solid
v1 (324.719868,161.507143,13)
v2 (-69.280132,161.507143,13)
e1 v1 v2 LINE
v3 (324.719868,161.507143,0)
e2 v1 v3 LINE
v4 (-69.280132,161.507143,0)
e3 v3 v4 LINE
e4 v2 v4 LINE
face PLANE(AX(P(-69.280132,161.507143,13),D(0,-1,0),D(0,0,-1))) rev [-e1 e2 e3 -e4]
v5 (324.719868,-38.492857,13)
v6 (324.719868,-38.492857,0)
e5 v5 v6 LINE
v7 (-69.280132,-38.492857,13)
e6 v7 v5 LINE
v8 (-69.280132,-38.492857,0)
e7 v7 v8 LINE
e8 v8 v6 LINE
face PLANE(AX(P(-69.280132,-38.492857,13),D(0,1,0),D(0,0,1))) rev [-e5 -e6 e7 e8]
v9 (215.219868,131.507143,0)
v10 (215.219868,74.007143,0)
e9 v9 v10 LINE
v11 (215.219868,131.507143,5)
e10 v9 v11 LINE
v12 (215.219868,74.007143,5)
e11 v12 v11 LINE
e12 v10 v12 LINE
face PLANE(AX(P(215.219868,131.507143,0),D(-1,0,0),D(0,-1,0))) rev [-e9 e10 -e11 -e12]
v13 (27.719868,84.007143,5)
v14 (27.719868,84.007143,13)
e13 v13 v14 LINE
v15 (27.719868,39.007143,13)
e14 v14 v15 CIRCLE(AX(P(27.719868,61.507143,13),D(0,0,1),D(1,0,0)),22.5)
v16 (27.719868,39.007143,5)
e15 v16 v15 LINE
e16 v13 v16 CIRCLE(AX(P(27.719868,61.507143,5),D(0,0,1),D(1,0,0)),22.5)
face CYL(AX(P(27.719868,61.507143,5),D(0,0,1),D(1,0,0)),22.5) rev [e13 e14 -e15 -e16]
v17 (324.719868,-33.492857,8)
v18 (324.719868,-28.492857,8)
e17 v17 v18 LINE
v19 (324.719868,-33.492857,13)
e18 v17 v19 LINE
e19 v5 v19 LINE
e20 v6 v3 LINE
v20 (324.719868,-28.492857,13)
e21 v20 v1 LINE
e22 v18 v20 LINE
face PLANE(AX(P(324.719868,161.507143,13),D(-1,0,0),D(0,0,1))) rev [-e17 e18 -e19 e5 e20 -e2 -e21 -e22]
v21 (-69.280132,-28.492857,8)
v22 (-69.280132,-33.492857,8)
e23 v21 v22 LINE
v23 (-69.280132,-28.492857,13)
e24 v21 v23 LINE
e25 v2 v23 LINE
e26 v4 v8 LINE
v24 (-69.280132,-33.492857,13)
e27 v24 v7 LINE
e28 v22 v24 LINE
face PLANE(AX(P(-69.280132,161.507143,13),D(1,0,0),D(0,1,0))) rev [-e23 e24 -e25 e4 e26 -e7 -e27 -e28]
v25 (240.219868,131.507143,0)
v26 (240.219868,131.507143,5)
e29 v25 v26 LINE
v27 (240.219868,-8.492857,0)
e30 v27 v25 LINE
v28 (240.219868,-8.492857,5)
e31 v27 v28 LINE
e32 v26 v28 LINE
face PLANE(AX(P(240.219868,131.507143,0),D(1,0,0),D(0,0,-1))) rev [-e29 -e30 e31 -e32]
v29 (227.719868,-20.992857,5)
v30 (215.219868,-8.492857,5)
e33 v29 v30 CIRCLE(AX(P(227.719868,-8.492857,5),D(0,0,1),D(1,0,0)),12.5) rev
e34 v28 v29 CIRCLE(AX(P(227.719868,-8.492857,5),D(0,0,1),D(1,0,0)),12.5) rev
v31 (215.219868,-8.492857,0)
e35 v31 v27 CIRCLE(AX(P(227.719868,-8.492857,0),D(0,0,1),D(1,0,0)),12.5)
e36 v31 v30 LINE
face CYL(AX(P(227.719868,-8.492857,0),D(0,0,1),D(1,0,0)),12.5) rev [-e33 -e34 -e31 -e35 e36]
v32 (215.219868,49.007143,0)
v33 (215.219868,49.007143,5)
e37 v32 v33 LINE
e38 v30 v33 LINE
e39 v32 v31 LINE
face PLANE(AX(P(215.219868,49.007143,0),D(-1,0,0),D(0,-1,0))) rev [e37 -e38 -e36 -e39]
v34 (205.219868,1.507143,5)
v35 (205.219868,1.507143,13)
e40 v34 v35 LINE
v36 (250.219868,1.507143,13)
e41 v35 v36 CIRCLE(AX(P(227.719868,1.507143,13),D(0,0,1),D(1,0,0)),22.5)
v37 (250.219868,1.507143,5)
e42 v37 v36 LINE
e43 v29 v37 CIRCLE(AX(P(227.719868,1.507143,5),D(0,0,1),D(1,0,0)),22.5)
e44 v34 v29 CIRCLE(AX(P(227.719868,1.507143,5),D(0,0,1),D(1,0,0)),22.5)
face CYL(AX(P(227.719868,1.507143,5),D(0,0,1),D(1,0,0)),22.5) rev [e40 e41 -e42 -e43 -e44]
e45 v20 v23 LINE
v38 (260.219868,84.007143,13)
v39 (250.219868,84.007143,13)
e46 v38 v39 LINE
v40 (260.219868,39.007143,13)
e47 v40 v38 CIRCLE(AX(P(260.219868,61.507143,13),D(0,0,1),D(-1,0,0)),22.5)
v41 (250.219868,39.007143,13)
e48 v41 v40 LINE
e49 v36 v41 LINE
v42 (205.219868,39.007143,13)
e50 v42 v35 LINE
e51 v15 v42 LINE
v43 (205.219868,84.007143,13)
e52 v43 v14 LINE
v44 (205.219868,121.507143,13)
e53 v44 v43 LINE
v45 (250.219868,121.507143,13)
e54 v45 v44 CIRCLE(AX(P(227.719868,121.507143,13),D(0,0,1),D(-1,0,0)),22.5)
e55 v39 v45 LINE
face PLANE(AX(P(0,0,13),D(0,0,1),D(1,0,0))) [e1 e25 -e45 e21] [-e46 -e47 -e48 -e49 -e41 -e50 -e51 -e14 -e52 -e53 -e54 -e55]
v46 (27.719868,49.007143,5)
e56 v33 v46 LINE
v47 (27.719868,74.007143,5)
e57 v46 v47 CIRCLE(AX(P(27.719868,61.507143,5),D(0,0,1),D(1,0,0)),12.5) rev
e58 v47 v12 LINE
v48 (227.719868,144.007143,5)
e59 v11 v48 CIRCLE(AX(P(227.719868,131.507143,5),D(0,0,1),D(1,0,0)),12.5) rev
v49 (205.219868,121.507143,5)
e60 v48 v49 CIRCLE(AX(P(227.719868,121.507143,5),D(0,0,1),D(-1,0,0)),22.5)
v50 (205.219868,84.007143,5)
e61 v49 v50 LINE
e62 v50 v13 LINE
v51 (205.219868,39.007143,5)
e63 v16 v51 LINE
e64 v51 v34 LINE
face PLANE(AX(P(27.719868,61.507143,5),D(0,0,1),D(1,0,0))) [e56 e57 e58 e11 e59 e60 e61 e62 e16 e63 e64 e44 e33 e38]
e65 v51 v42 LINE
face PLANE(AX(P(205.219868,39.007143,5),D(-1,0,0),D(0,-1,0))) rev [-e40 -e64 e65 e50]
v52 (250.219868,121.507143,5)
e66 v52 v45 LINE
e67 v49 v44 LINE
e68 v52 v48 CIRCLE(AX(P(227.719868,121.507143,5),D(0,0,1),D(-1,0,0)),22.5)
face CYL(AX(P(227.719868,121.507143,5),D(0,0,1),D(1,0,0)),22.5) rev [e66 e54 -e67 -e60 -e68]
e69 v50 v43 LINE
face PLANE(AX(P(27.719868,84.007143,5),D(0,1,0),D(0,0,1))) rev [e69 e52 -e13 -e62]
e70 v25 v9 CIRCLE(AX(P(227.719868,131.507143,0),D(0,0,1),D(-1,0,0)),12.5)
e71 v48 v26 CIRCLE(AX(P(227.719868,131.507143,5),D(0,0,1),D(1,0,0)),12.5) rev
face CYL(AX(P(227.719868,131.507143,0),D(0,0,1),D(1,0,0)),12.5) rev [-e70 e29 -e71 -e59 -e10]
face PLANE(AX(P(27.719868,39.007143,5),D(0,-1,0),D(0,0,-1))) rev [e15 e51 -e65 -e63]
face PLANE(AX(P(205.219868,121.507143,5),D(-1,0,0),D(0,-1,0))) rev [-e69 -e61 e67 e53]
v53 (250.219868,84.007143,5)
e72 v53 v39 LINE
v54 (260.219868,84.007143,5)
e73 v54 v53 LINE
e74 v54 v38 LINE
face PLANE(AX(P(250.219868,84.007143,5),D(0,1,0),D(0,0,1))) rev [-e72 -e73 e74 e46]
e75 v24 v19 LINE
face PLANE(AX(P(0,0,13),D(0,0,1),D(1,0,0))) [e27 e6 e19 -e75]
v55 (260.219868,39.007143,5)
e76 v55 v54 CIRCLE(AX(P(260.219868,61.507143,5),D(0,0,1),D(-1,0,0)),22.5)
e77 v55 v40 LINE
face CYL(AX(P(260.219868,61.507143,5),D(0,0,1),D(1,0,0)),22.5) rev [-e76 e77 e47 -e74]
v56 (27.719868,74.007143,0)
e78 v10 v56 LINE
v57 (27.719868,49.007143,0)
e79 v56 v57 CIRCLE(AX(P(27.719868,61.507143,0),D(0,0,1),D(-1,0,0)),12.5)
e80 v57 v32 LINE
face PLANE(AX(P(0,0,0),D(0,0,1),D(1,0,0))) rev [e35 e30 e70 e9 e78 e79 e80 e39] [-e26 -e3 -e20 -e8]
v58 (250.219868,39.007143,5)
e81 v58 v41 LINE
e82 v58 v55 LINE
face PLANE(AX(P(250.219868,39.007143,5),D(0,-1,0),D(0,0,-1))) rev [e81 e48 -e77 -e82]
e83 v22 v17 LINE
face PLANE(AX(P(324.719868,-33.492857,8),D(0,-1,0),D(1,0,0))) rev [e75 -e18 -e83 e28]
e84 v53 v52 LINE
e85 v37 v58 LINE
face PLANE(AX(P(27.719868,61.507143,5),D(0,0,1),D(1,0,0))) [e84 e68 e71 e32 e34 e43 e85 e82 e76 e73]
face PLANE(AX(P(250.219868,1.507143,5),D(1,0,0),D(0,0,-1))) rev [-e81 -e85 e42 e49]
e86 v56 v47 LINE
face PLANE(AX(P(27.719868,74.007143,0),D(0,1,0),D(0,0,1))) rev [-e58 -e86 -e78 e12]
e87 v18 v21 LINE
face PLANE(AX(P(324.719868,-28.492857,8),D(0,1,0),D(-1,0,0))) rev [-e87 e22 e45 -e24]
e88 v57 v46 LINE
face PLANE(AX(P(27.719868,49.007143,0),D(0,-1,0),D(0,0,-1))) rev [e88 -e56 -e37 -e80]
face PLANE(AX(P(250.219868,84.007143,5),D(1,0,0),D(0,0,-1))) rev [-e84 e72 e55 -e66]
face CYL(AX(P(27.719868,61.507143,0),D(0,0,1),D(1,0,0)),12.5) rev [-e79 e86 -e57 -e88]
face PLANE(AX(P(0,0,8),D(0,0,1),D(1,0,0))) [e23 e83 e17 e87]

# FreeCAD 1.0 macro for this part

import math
import FreeCAD as App
import Part
import Sketcher
from FreeCAD import Vector


def add_polygon(sketch, points):
    """Adds a closed chain of lines whose ends are joined by coincident constraints."""
    first, n = sketch.GeometryCount, len(points)
    for a, b in zip(points, points[1:] + points[:1]):
        sketch.addGeometry(Part.LineSegment(App.Vector(*a, 0), App.Vector(*b, 0)), False)
    for i in range(n):
        sketch.addConstraint(Sketcher.Constraint("Coincident", first + i, 2, first + (i + 1) % n, 1))

doc = App.newDocument("Part")
body = doc.addObject("PartDesign::Body", "Body")

sketch1 = body.newObject("Sketcher::SketchObject", "Sketch")
sketch1.AttachmentSupport = (doc.getObject("XY_Plane"), [""])
sketch1.MapMode = "FlatFace"
add_polygon(sketch1, [(-69.280132, 161.507143), (-69.280132, -38.492857), (324.719868, -38.492857), (324.719868, 161.507143)])
sketch1.addConstraint([
    Sketcher.Constraint("Vertical", 0),
    Sketcher.Constraint("Horizontal", 1),
    Sketcher.Constraint("Vertical", 2),
    Sketcher.Constraint("Horizontal", 3),
    Sketcher.Constraint("DistanceX", 1, 1, 1, 2, 394.0),
    Sketcher.Constraint("DistanceY", 0, 2, 0, 1, 200.0),
    Sketcher.Constraint("DistanceX", 0, 2, -1, 1, 69.280132),
    Sketcher.Constraint("DistanceY", 0, 2, -1, 1, 38.492857),
])
pad1 = body.newObject("PartDesign::Pad", "Pad")
pad1.Profile = sketch1
pad1.Length = 13

sketch2 = body.newObject("Sketcher::SketchObject", "Sketch001")
sketch2.AttachmentSupport = (doc.getObject("XY_Plane"), [""])
sketch2.MapMode = "FlatFace"
sketch2.AttachmentOffset = App.Placement(Vector(0, 0, 13), App.Rotation())
add_polygon(sketch2, [(-69.280132, -28.492857), (-69.280132, -33.492857), (324.719868, -33.492857), (324.719868, -28.492857)])
sketch2.addConstraint([
    Sketcher.Constraint("Vertical", 0),
    Sketcher.Constraint("Horizontal", 1),
    Sketcher.Constraint("Vertical", 2),
    Sketcher.Constraint("Horizontal", 3),
    Sketcher.Constraint("DistanceX", 1, 1, 1, 2, 394.0),
    Sketcher.Constraint("DistanceY", 0, 2, 0, 1, 5.0),
    Sketcher.Constraint("DistanceX", 0, 2, -1, 1, 69.280132),
    Sketcher.Constraint("DistanceY", 0, 2, -1, 1, 33.492857),
])
pocket1 = body.newObject("PartDesign::Pocket", "Pocket")
pocket1.Profile = sketch2
pocket1.Length = 5

sketch3 = body.newObject("Sketcher::SketchObject", "Sketch002")
sketch3.AttachmentSupport = (doc.getObject("XY_Plane"), [""])
sketch3.MapMode = "FlatFace"
sketch3.AttachmentOffset = App.Placement(Vector(0, 0, 13), App.Rotation())
sketch3.addGeometry([
    Part.LineSegment(Vector(215.219868, 74.007143, 0), Vector(27.719868, 74.007143, 0)),
    Part.ArcOfCircle(Part.Circle(Vector(27.719868, 61.507143, 0), Vector(0, 0, 1), 12.5), math.radians(90), math.radians(270)),
    Part.LineSegment(Vector(27.719868, 49.007143, 0), Vector(215.219868, 49.007143, 0)),
    Part.LineSegment(Vector(215.219868, 49.007143, 0), Vector(215.219868, -8.492857, 0)),
    Part.ArcOfCircle(Part.Circle(Vector(227.719868, -8.492857, 0), Vector(0, 0, 1), 12.5), math.radians(180), math.radians(360)),
    Part.LineSegment(Vector(240.219868, -8.492857, 0), Vector(240.219868, 131.507143, 0)),
    Part.ArcOfCircle(Part.Circle(Vector(227.719868, 131.507143, 0), Vector(0, 0, 1), 12.5), math.radians(0), math.radians(180)),
    Part.LineSegment(Vector(215.219868, 131.507143, 0), Vector(215.219868, 74.007143, 0)),
], False)
sketch3.addConstraint([
    Sketcher.Constraint("Tangent", 0, 2, 1, 1),
    Sketcher.Constraint("Tangent", 1, 2, 2, 1),
    Sketcher.Constraint("Coincident", 2, 2, 3, 1),
    Sketcher.Constraint("Tangent", 3, 2, 4, 1),
    Sketcher.Constraint("Tangent", 4, 2, 5, 1),
    Sketcher.Constraint("Tangent", 5, 2, 6, 1),
    Sketcher.Constraint("Tangent", 6, 2, 7, 1),
    Sketcher.Constraint("Coincident", 7, 2, 0, 1),
    Sketcher.Constraint("Horizontal", 0),
    Sketcher.Constraint("Horizontal", 2),
    Sketcher.Constraint("Vertical", 3),
    Sketcher.Constraint("Vertical", 5),
    Sketcher.Constraint("Vertical", 7),
    Sketcher.Constraint("Equal", 1, 4),
    Sketcher.Constraint("Equal", 4, 6),
    Sketcher.Constraint("Equal", 3, 7),
    Sketcher.Constraint("Radius", 1, 12.5),
    Sketcher.Constraint("DistanceY", 5, 1, 5, 2, 140.0),
    Sketcher.Constraint("DistanceX", 0, 2, 0, 1, 187.5),
    Sketcher.Constraint("DistanceX", -1, 1, 1, 3, 27.719868),
    Sketcher.Constraint("DistanceY", -1, 1, 1, 3, 61.507143),
])
pocket2 = body.newObject("PartDesign::Pocket", "Pocket001")
pocket2.Profile = sketch3
pocket2.Type = "ThroughAll"

sketch4 = body.newObject("Sketcher::SketchObject", "Sketch003")
sketch4.AttachmentSupport = (doc.getObject("XY_Plane"), [""])
sketch4.MapMode = "FlatFace"
sketch4.AttachmentOffset = App.Placement(Vector(0, 0, 13), App.Rotation())
sketch4.addGeometry([
    Part.LineSegment(Vector(205.219868, 84.007143, 0), Vector(27.719868, 84.007143, 0)),
    Part.ArcOfCircle(Part.Circle(Vector(27.719868, 61.507143, 0), Vector(0, 0, 1), 22.5), math.radians(90), math.radians(270)),
    Part.LineSegment(Vector(27.719868, 39.007143, 0), Vector(205.219868, 39.007143, 0)),
    Part.LineSegment(Vector(205.219868, 39.007143, 0), Vector(205.219868, 1.507143, 0)),
    Part.ArcOfCircle(Part.Circle(Vector(227.719868, 1.507143, 0), Vector(0, 0, 1), 22.5), math.radians(180), math.radians(360)),
    Part.LineSegment(Vector(250.219868, 1.507143, 0), Vector(250.219868, 39.007143, 0)),
    Part.LineSegment(Vector(250.219868, 39.007143, 0), Vector(260.219868, 39.007143, 0)),
    Part.ArcOfCircle(Part.Circle(Vector(260.219868, 61.507143, 0), Vector(0, 0, 1), 22.5), math.radians(-90), math.radians(90)),
    Part.LineSegment(Vector(260.219868, 84.007143, 0), Vector(250.219868, 84.007143, 0)),
    Part.LineSegment(Vector(250.219868, 84.007143, 0), Vector(250.219868, 121.507143, 0)),
    Part.ArcOfCircle(Part.Circle(Vector(227.719868, 121.507143, 0), Vector(0, 0, 1), 22.5), math.radians(0), math.radians(180)),
    Part.LineSegment(Vector(205.219868, 121.507143, 0), Vector(205.219868, 84.007143, 0)),
], False)
sketch4.addConstraint([
    Sketcher.Constraint("Tangent", 0, 2, 1, 1),
    Sketcher.Constraint("Tangent", 1, 2, 2, 1),
    Sketcher.Constraint("Coincident", 2, 2, 3, 1),
    Sketcher.Constraint("Tangent", 3, 2, 4, 1),
    Sketcher.Constraint("Tangent", 4, 2, 5, 1),
    Sketcher.Constraint("Coincident", 5, 2, 6, 1),
    Sketcher.Constraint("Tangent", 6, 2, 7, 1),
    Sketcher.Constraint("Tangent", 7, 2, 8, 1),
    Sketcher.Constraint("Coincident", 8, 2, 9, 1),
    Sketcher.Constraint("Tangent", 9, 2, 10, 1),
    Sketcher.Constraint("Tangent", 10, 2, 11, 1),
    Sketcher.Constraint("Coincident", 11, 2, 0, 1),
    Sketcher.Constraint("Horizontal", 0),
    Sketcher.Constraint("Horizontal", 2),
    Sketcher.Constraint("Vertical", 3),
    Sketcher.Constraint("Vertical", 5),
    Sketcher.Constraint("Horizontal", 6),
    Sketcher.Constraint("Horizontal", 8),
    Sketcher.Constraint("Vertical", 9),
    Sketcher.Constraint("Vertical", 11),
    Sketcher.Constraint("Equal", 1, 4),
    Sketcher.Constraint("Equal", 4, 7),
    Sketcher.Constraint("Equal", 7, 10),
    Sketcher.Constraint("Horizontal", 1, 3, 7, 3),
    Sketcher.Constraint("Vertical", 4, 3, 10, 3),
    Sketcher.Constraint("Equal", 5, 9),
    Sketcher.Constraint("Radius", 1, 22.5),
    Sketcher.Constraint("DistanceX", 6, 1, 6, 2, 10.0),
    Sketcher.Constraint("DistanceX", 0, 2, 0, 1, 177.5),
    Sketcher.Constraint("DistanceY", 3, 2, 3, 1, 37.5),
    Sketcher.Constraint("DistanceX", -1, 1, 1, 3, 27.719868),
    Sketcher.Constraint("DistanceY", -1, 1, 1, 3, 61.507143),
])
pocket3 = body.newObject("PartDesign::Pocket", "Pocket002")
pocket3.Profile = sketch4
pocket3.Length = 8

doc.recompute()
